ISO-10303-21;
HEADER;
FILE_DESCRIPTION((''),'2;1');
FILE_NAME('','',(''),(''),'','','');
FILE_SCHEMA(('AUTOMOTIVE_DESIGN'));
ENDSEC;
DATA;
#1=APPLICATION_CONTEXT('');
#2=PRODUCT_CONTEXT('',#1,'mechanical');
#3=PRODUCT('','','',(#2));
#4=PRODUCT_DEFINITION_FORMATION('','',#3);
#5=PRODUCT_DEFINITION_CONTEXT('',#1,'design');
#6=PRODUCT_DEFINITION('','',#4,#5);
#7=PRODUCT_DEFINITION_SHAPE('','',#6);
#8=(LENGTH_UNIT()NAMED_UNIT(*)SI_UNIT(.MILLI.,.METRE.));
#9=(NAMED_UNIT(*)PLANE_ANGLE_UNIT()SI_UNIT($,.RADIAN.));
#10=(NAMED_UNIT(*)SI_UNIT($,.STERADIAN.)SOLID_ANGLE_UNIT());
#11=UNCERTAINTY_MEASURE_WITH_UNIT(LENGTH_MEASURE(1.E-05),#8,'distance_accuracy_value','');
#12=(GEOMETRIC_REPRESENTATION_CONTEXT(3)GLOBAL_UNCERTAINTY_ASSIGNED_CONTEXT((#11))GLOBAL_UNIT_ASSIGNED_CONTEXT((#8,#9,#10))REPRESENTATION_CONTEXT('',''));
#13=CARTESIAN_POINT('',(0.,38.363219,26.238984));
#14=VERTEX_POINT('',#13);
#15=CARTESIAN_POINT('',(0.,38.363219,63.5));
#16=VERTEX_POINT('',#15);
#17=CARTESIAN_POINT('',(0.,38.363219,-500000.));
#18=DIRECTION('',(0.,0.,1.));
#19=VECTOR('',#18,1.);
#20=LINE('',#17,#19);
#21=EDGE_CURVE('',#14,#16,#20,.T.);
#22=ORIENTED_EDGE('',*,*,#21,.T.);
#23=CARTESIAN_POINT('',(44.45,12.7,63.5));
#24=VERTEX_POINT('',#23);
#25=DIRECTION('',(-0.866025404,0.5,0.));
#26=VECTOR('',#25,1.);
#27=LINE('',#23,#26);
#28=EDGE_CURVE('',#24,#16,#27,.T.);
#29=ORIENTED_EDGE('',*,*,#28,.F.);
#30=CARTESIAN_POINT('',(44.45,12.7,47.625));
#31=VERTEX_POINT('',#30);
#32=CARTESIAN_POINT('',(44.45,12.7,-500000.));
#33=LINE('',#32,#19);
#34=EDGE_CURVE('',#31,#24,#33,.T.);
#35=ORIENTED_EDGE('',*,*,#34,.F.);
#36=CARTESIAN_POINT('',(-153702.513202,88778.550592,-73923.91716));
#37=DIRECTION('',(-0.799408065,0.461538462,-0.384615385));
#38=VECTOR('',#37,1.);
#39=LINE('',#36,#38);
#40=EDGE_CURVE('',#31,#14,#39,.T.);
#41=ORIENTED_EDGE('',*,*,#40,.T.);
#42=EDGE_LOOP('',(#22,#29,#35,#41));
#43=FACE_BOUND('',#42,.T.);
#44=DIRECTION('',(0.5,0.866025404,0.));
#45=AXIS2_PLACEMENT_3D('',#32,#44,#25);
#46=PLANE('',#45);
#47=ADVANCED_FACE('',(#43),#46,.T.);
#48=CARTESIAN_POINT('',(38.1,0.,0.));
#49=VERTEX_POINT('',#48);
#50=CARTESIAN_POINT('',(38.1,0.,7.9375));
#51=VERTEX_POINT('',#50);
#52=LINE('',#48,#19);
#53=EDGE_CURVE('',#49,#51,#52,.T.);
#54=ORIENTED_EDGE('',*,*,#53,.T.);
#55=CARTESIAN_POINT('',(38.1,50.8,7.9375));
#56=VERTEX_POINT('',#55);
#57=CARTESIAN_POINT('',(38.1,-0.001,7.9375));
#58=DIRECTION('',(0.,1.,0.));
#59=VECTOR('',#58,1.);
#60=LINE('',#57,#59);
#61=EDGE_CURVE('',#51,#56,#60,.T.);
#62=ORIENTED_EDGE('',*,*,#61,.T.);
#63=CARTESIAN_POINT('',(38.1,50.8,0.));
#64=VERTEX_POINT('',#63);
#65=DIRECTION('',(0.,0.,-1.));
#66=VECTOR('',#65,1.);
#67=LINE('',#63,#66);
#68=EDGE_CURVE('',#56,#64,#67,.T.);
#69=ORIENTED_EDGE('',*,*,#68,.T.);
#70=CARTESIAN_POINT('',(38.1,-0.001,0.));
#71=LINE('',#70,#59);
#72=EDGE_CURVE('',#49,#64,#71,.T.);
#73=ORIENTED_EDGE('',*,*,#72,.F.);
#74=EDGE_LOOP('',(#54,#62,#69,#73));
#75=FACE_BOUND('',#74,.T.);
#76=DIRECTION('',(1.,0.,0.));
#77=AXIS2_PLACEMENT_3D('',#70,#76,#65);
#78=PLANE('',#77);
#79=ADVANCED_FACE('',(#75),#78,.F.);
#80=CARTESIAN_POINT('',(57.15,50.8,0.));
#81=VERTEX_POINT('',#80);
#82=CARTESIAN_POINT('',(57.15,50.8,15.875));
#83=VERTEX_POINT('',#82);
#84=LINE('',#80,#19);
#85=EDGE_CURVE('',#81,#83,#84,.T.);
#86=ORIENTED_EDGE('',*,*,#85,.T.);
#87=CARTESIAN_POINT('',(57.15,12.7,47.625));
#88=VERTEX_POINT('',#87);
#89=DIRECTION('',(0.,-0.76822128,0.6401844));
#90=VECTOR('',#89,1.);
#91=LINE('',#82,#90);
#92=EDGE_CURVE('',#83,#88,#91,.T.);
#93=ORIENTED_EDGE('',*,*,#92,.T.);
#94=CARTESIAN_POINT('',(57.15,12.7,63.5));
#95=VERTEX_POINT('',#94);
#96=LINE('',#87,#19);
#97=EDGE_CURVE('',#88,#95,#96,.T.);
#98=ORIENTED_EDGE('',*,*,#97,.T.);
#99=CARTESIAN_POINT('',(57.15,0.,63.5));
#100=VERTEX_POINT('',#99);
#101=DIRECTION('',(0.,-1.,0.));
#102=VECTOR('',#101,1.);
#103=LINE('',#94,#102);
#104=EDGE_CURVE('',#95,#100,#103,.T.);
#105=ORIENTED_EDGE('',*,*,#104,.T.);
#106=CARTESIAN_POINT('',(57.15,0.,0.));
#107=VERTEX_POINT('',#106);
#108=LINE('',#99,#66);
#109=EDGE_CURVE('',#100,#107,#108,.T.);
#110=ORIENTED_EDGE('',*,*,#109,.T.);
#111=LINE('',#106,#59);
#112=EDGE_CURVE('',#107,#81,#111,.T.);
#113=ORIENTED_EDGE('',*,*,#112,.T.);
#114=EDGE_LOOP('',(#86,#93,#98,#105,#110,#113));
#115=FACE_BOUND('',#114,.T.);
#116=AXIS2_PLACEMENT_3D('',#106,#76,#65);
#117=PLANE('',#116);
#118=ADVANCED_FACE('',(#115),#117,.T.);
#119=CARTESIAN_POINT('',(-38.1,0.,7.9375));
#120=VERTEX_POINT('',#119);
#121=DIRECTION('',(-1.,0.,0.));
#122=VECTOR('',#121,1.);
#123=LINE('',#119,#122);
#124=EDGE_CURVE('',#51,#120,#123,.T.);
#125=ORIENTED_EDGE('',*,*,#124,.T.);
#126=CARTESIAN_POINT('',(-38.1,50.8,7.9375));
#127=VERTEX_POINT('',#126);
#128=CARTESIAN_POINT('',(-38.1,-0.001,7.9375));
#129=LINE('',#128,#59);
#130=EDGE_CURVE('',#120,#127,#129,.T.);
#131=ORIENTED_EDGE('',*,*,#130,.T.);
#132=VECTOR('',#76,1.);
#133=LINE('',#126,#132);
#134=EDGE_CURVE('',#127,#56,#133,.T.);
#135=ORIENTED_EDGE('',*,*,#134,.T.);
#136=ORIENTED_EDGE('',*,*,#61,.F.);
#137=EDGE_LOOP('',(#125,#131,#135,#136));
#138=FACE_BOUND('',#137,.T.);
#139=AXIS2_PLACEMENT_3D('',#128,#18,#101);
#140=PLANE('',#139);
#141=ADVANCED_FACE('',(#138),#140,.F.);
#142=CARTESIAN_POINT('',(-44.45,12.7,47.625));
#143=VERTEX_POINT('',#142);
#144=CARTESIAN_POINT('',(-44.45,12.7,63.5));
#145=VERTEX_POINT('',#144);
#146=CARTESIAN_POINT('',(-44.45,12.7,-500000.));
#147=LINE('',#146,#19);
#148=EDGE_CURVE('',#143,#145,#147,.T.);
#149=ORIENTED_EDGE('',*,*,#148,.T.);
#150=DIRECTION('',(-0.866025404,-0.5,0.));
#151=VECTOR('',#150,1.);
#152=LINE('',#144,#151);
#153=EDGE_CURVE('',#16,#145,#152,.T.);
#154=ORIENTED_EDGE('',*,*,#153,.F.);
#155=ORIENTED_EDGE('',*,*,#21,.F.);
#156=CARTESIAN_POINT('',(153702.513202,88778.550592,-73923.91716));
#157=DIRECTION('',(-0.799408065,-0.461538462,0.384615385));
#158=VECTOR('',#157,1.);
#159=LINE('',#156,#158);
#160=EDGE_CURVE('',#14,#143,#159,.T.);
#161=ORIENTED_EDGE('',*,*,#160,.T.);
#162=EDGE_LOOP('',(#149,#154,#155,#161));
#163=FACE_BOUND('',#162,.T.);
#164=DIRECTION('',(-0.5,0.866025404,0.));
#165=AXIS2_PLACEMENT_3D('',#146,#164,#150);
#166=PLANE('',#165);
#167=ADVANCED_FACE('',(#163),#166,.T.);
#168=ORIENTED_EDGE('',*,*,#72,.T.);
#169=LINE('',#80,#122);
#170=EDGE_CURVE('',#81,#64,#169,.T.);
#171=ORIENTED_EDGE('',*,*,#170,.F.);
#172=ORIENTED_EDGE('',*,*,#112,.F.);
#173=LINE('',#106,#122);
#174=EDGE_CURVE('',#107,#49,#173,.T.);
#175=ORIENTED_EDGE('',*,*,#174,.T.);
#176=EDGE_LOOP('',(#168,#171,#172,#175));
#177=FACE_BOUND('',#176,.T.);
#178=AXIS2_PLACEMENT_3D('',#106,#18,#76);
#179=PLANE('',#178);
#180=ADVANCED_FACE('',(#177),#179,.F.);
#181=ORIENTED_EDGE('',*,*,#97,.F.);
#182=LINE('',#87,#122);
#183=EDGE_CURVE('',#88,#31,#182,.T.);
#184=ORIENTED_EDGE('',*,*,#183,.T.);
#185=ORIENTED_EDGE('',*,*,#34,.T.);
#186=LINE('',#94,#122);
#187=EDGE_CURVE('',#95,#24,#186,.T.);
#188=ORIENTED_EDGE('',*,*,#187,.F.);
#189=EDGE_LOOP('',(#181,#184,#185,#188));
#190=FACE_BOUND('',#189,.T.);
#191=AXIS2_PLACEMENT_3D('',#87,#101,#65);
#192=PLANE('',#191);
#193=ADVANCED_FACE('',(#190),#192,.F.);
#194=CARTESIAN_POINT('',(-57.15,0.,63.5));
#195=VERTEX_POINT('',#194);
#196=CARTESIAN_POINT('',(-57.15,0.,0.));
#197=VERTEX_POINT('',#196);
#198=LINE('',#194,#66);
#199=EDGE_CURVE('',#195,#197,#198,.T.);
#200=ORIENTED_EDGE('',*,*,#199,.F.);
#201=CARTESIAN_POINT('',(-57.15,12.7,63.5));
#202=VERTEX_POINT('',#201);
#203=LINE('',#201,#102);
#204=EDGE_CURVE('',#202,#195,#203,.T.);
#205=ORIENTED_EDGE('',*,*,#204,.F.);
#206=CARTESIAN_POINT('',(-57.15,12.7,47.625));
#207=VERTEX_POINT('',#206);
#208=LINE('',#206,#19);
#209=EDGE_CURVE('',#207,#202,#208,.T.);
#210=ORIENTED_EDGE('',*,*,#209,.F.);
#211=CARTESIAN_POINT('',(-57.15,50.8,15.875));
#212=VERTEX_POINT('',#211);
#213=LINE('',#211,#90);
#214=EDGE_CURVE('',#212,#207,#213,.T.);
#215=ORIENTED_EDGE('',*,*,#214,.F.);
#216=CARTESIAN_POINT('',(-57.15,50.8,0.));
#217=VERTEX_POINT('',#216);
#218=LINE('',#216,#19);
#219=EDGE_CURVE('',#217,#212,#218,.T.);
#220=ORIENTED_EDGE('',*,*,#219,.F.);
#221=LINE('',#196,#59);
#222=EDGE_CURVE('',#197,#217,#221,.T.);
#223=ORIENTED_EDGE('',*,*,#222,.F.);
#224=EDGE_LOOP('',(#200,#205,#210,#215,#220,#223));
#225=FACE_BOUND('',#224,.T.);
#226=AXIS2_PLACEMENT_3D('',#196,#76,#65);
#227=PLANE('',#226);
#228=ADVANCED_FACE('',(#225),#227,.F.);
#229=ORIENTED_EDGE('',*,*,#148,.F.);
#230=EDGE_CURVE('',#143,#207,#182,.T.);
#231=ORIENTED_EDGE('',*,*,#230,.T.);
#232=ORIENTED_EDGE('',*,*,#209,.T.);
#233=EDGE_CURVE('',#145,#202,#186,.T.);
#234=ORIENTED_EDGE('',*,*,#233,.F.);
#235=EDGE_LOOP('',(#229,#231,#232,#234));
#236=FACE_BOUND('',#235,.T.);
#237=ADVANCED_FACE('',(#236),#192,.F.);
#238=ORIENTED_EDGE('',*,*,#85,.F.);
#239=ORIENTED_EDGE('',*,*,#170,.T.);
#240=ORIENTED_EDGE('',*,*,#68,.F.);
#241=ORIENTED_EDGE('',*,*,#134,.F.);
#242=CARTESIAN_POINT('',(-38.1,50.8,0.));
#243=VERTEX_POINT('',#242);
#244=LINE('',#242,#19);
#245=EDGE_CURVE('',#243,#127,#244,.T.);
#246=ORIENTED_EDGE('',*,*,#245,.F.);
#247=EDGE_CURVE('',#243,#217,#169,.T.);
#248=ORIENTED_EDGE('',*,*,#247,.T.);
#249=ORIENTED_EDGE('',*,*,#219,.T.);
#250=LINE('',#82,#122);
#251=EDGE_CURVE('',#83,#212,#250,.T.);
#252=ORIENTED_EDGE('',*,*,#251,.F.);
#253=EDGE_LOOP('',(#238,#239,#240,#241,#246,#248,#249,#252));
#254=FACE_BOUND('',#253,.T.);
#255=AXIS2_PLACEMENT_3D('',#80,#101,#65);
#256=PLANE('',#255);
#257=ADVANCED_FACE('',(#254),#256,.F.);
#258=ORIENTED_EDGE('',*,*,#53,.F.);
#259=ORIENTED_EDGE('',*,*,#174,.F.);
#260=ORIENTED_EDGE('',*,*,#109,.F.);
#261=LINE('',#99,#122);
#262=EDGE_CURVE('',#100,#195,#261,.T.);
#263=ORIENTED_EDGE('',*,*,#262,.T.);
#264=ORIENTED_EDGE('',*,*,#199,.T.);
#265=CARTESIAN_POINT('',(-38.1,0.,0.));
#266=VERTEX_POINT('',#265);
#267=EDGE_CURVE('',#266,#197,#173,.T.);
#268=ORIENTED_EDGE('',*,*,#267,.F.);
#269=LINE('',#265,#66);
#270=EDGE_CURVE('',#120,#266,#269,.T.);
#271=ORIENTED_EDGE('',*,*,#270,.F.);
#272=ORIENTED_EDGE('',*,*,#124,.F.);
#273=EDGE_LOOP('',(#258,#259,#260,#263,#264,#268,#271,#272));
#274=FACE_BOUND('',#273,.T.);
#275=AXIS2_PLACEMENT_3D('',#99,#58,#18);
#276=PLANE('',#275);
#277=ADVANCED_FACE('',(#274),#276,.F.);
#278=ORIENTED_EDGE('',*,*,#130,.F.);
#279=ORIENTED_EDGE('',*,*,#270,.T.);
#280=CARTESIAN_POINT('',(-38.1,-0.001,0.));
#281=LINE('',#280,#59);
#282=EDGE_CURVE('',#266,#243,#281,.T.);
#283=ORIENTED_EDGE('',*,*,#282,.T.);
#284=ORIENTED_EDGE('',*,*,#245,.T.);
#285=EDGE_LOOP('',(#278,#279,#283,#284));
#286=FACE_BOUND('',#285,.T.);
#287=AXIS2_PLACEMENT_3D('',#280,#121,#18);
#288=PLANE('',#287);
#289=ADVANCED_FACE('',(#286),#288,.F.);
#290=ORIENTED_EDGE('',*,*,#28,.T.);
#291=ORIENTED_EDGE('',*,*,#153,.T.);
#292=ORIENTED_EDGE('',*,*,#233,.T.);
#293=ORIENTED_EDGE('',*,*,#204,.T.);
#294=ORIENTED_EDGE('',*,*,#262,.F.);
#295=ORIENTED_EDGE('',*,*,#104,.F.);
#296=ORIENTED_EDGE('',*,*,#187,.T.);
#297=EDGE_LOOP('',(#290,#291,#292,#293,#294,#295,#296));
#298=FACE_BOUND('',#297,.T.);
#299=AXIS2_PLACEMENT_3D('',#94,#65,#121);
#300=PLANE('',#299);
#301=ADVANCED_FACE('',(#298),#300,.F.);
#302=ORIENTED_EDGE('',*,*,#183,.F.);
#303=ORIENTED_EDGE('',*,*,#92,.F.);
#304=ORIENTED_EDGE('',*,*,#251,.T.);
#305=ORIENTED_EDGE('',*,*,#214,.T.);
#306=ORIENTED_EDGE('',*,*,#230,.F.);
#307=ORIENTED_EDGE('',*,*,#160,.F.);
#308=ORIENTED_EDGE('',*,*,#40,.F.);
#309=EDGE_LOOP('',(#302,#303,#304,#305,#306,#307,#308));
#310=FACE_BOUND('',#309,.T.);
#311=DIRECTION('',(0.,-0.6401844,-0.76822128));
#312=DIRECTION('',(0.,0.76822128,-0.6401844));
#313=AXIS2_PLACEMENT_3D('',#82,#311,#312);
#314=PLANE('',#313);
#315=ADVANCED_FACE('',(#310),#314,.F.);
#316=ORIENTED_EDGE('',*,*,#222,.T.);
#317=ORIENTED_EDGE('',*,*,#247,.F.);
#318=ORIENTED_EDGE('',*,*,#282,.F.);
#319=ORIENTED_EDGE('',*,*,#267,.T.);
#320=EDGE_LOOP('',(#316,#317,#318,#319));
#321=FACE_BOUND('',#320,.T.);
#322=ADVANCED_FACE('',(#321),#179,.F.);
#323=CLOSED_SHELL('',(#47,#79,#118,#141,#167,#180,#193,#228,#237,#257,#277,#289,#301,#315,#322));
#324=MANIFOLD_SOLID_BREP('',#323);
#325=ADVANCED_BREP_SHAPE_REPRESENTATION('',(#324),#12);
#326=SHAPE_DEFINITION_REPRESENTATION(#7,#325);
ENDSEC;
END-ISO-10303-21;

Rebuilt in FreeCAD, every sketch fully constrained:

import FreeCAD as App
import Part
import Sketcher
from FreeCAD import Vector
Q = App.Units.Quantity


def add_polygon(sketch, points):
    """Adds a closed chain of lines whose ends are joined by coincident constraints."""
    first, n = sketch.GeometryCount, len(points)
    for a, b in zip(points, points[1:] + points[:1]):
        sketch.addGeometry(Part.LineSegment(App.Vector(*a, 0), App.Vector(*b, 0)), False)
    for i in range(n):
        sketch.addConstraint(Sketcher.Constraint("Coincident", first + i, 2, first + (i + 1) % n, 1))

doc = App.newDocument("Part")
body = doc.addObject("PartDesign::Body", "Body")

sketch1 = body.newObject("Sketcher::SketchObject", "Sketch")
sketch1.AttachmentSupport = (doc.getObject("YZ_Plane"), [""])
sketch1.MapMode = "FlatFace"
add_polygon(sketch1, [(0, 63.5), (0, 0), (50.8, 0), (50.8, 15.875), (12.7, 47.625), (12.7, 63.5)])
sketch1.addConstraint([
    Sketcher.Constraint("Vertical", 0),
    Sketcher.Constraint("Horizontal", 1),
    Sketcher.Constraint("Vertical", 2),
    Sketcher.Constraint("Vertical", 4),
    Sketcher.Constraint("Horizontal", 5),
    Sketcher.Constraint("Coincident", 0, 2, -1, 1),
    Sketcher.Constraint("Equal", 2, 4),
    Sketcher.Constraint("DistanceX", 1, 1, 1, 2, Q("2 in")),
    Sketcher.Constraint("DistanceX", 5, 2, 5, 1, Q("0.5 in")),
    Sketcher.Constraint("DistanceY", 0, 2, 0, 1, Q("2.5 in")),
    Sketcher.Constraint("DistanceY", 2, 1, 2, 2, Q("0.625 in")),
])
pad1 = body.newObject("PartDesign::Pad", "Pad")
pad1.Profile = sketch1
pad1.Length = Q("4.5 in")
pad1.Midplane = True

sketch2 = body.newObject("Sketcher::SketchObject", "Sketch001")
sketch2.AttachmentSupport = (doc.getObject("XY_Plane"), [""])
sketch2.MapMode = "FlatFace"
sketch2.AttachmentOffset = App.Placement(Vector(0, 0, 2.5 * 25.4), App.Rotation())
add_polygon(sketch2, [(-44.45, 12.7), (44.45, 12.7), (0, 38.363219)])
sketch2.addConstraint([
    Sketcher.Constraint("Horizontal", 0),
    Sketcher.Constraint("PointOnObject", 1, 2, -2),
    Sketcher.Constraint("Equal", 1, 2),
    Sketcher.Constraint("DistanceX", 0, 1, 0, 2, Q("3.5 in")),
    Sketcher.Constraint("Angle", 1, Q("150 deg")),
    Sketcher.Constraint("DistanceY", -1, 1, 0, 2, Q("0.5 in")),
])
pad2 = body.newObject("PartDesign::Pad", "Pad001")
pad2.Profile = sketch2
pad2.Type = "UpToFirst"
pad2.Reversed = True

sketch3 = body.newObject("Sketcher::SketchObject", "Sketch002")
sketch3.AttachmentSupport = (doc.getObject("XZ_Plane"), [""])
sketch3.MapMode = "FlatFace"
sketch3.AttachmentOffset = App.Placement(Vector(0, 0, -2 * 25.4), App.Rotation())
add_polygon(sketch3, [(-38.1, 0), (-38.1, 7.9375), (38.1, 7.9375), (38.1, 0)])
sketch3.addConstraint([
    Sketcher.Constraint("Vertical", 0),
    Sketcher.Constraint("Horizontal", 1),
    Sketcher.Constraint("Vertical", 2),
    Sketcher.Constraint("Horizontal", 3),
    Sketcher.Constraint("Symmetric", 2, 2, 3, 2, -1, 1),
    Sketcher.Constraint("DistanceX", 1, 1, 1, 2, Q("3 in")),
    Sketcher.Constraint("DistanceY", 0, 1, 0, 2, Q("0.3125 in")),
])
pocket1 = body.newObject("PartDesign::Pocket", "Pocket")
pocket1.Profile = sketch3
pocket1.Type = "UpToFirst"
pocket1.Reversed = True

doc.recompute()
